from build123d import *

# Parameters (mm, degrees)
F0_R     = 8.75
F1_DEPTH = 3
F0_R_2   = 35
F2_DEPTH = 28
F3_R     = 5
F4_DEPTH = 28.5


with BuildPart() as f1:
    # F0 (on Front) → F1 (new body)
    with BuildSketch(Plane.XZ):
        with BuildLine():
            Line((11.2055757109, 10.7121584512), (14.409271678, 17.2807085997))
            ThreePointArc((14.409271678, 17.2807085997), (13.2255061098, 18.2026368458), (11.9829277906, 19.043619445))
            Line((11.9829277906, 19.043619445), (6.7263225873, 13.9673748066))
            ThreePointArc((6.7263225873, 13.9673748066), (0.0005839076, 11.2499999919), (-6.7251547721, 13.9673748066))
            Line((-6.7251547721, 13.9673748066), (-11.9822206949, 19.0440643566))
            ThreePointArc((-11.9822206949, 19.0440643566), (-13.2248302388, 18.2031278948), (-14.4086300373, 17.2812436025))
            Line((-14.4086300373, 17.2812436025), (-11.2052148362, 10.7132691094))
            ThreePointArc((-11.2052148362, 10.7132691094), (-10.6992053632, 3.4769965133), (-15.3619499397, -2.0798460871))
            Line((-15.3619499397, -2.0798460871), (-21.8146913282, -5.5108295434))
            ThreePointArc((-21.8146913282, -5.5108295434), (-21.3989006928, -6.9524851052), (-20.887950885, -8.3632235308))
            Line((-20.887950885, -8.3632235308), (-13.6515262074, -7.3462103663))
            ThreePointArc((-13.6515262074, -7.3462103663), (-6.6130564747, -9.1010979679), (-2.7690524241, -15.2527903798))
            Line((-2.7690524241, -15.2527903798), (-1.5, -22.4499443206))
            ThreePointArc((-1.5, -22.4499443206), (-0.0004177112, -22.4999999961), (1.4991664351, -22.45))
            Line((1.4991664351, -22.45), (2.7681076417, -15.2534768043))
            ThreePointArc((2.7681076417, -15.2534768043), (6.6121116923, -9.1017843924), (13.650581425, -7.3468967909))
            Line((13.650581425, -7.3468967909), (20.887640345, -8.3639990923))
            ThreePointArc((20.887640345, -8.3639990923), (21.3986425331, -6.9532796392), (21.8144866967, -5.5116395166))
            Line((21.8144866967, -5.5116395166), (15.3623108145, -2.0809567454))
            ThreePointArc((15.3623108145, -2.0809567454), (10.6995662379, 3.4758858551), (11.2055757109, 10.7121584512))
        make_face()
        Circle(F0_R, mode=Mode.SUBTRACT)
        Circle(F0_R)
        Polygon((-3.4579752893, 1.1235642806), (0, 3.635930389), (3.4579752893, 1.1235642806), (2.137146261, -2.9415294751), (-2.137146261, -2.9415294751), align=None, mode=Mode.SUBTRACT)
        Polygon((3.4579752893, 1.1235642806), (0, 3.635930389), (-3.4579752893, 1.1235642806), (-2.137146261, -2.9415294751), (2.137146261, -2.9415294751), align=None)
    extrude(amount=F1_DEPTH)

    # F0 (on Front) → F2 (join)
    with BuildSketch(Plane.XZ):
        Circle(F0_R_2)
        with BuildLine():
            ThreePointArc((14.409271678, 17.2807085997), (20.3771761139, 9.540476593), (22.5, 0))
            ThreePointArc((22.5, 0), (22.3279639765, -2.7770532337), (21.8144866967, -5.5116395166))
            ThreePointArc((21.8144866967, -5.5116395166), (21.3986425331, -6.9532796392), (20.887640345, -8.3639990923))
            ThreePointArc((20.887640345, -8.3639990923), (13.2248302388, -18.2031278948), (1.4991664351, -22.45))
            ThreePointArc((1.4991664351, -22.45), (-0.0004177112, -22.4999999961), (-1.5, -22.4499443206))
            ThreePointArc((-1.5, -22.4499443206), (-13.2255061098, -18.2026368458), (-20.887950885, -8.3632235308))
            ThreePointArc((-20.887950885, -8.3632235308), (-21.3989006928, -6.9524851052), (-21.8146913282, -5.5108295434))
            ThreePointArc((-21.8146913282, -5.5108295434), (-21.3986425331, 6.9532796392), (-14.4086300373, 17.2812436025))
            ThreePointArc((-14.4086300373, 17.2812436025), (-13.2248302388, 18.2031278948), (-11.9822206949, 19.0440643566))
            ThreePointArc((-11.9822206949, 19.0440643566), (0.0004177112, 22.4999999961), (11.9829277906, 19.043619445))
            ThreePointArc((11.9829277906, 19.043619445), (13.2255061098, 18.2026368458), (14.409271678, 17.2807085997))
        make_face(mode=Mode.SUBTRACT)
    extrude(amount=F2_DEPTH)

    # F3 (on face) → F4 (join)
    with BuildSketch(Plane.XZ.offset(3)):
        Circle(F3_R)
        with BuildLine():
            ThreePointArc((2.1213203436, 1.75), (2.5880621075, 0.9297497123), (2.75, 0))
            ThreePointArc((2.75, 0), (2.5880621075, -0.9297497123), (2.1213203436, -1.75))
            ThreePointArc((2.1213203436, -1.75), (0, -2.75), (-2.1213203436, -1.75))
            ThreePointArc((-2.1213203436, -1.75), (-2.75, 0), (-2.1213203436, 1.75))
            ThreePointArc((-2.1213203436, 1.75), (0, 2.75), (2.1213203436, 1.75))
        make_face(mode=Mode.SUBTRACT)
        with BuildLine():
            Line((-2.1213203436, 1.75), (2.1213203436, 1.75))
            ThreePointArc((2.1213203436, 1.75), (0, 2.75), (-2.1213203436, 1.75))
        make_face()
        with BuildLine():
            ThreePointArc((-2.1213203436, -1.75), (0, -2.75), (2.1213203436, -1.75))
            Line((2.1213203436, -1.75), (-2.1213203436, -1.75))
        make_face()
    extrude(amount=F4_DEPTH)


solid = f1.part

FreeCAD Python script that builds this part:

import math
import FreeCAD as App
import Part
import Sketcher

V = App.Vector
Q = App.Units.Quantity

doc = App.newDocument("Part")
params = doc.addObject("Spreadsheet::Sheet", "Params")
for row, (alias, value) in enumerate([
    ("sketch1_radius", "22.5 mm"),
    ("pad1_length", "3 mm"),
    ("sketch2_diameter", "70 mm"),
    ("sketch2_radius", "22.5 mm"),
    ("pad2_length", "28 mm"),
    ("sketch3_diameter", "10 mm"),
    ("sketch3_radius", "2.75 mm"),
    ("pad3_length", "28.5 mm"),
], start=1):
    params.set(f"A{row}", alias)
    params.set(f"B{row}", "=" + value)
    params.setAlias(f"B{row}", alias)

body = doc.addObject("PartDesign::Body", "Body")

sketch1 = body.newObject("Sketcher::SketchObject", "Sketch")
sketch1.AttachmentSupport = (doc.getObject("XZ_Plane"), [""])
sketch1.MapMode = "FlatFace"
sketch1.addGeometry(Part.LineSegment(V(11.2, 10.7, 0), V(14.4, 17.3, 0)), False)
sketch1.addGeometry(Part.ArcOfCircle(Part.Circle(V(0, 0, 0), V(0, 0, 1), 22.5), math.radians(50.18), math.radians(57.82)), False)
sketch1.addGeometry(Part.LineSegment(V(12, 19, 0), V(6.7, 14, 0)), False)
sketch1.addGeometry(Part.ArcOfCircle(Part.Circle(V(0, 20.9, 0), V(0, 0, 1), 9.7), math.radians(-134), math.radians(-46)), False)
sketch1.addGeometry(Part.LineSegment(V(-6.7, 14, 0), V(-12, 19, 0)), False)
sketch1.addGeometry(Part.ArcOfCircle(Part.Circle(V(0, 0, 0), V(0, 0, 1), 22.5), math.radians(122.18), math.radians(129.82)), False)
sketch1.addGeometry(Part.LineSegment(V(-14.4, 17.3, 0), V(-11.2, 10.7, 0)), False)
sketch1.addGeometry(Part.ArcOfCircle(Part.Circle(V(-19.9, 6.5, 0), V(0, 0, 1), 9.7), math.radians(-62), math.radians(26)), False)
sketch1.addGeometry(Part.LineSegment(V(-15.4, -2.1, 0), V(-21.8, -5.5, 0)), False)
sketch1.addGeometry(Part.ArcOfCircle(Part.Circle(V(0, 0, 0), V(0, 0, 1), 22.5), math.radians(-165.82), math.radians(-158.18)), False)
sketch1.addGeometry(Part.LineSegment(V(-20.9, -8.4, 0), V(-13.7, -7.3, 0)), False)
sketch1.addGeometry(Part.ArcOfCircle(Part.Circle(V(-12.3, -16.9, 0), V(0, 0, 1), 9.7), math.radians(10), math.radians(98)), False)
sketch1.addGeometry(Part.LineSegment(V(-2.8, -15.3, 0), V(-1.5, -22.4, 0)), False)
sketch1.addGeometry(Part.ArcOfCircle(Part.Circle(V(0, 0, 0), V(0, 0, 1), 22.5), math.radians(-93.82), math.radians(-86.18)), False)
sketch1.addGeometry(Part.LineSegment(V(1.5, -22.4, 0), V(2.8, -15.3, 0)), False)
sketch1.addGeometry(Part.ArcOfCircle(Part.Circle(V(12.3, -16.9, 0), V(0, 0, 1), 9.7), math.radians(82), math.radians(170)), False)
sketch1.addGeometry(Part.LineSegment(V(13.7, -7.3, 0), V(20.9, -8.4, 0)), False)
sketch1.addGeometry(Part.ArcOfCircle(Part.Circle(V(0, 0, 0), V(0, 0, 1), 22.5), math.radians(-21.82), math.radians(-14.18)), False)
sketch1.addGeometry(Part.LineSegment(V(21.8, -5.5, 0), V(15.4, -2.1, 0)), False)
sketch1.addGeometry(Part.ArcOfCircle(Part.Circle(V(19.9, 6.5, 0), V(0, 0, 1), 9.7), math.radians(154), math.radians(242)), False)
sketch1.addConstraint(Sketcher.Constraint("Coincident", 0, 2, 1, 1))
sketch1.addConstraint(Sketcher.Constraint("Coincident", 1, 2, 2, 1))
sketch1.addConstraint(Sketcher.Constraint("Tangent", 2, 2, 3, 2))
sketch1.addConstraint(Sketcher.Constraint("Tangent", 3, 1, 4, 1))
sketch1.addConstraint(Sketcher.Constraint("Coincident", 4, 2, 5, 1))
sketch1.addConstraint(Sketcher.Constraint("Coincident", 5, 2, 6, 1))
sketch1.addConstraint(Sketcher.Constraint("Tangent", 6, 2, 7, 2))
sketch1.addConstraint(Sketcher.Constraint("Tangent", 7, 1, 8, 1))
sketch1.addConstraint(Sketcher.Constraint("Coincident", 8, 2, 9, 1))
sketch1.addConstraint(Sketcher.Constraint("Coincident", 9, 2, 10, 1))
sketch1.addConstraint(Sketcher.Constraint("Tangent", 10, 2, 11, 2))
sketch1.addConstraint(Sketcher.Constraint("Tangent", 11, 1, 12, 1))
sketch1.addConstraint(Sketcher.Constraint("Coincident", 12, 2, 13, 1))
sketch1.addConstraint(Sketcher.Constraint("Coincident", 13, 2, 14, 1))
sketch1.addConstraint(Sketcher.Constraint("Tangent", 14, 2, 15, 2))
sketch1.addConstraint(Sketcher.Constraint("Tangent", 15, 1, 16, 1))
sketch1.addConstraint(Sketcher.Constraint("Coincident", 16, 2, 17, 1))
sketch1.addConstraint(Sketcher.Constraint("Coincident", 17, 2, 18, 1))
sketch1.addConstraint(Sketcher.Constraint("Tangent", 18, 2, 19, 2))
sketch1.addConstraint(Sketcher.Constraint("Tangent", 19, 1, 0, 1))
sketch1.addConstraint(Sketcher.Constraint("Coincident", 1, 3, -1, 1))
sketch1.addConstraint(Sketcher.Constraint("Coincident", 5, 3, -1, 1))
sketch1.addConstraint(Sketcher.Constraint("Coincident", 9, 3, -1, 1))
sketch1.addConstraint(Sketcher.Constraint("Coincident", 13, 3, -1, 1))
sketch1.addConstraint(Sketcher.Constraint("Coincident", 17, 3, -1, 1))
sketch1.addConstraint(Sketcher.Constraint("Equal", 1, 5))
sketch1.addConstraint(Sketcher.Constraint("Equal", 3, 7))
sketch1.addConstraint(Sketcher.Constraint("Equal", 5, 9))
sketch1.addConstraint(Sketcher.Constraint("Equal", 7, 11))
sketch1.addConstraint(Sketcher.Constraint("Equal", 9, 13))
sketch1.addConstraint(Sketcher.Constraint("Equal", 11, 15))
sketch1.addConstraint(Sketcher.Constraint("Equal", 13, 17))
sketch1.addConstraint(Sketcher.Constraint("Equal", 15, 19))
sketch1.addConstraint(Sketcher.Constraint("Horizontal", 2, 2, 3, 1))
sketch1.addConstraint(Sketcher.Constraint("Equal", 0, 4))
sketch1.addConstraint(Sketcher.Constraint("Equal", 2, 6))
sketch1.addConstraint(Sketcher.Constraint("Equal", 4, 8))
sketch1.addConstraint(Sketcher.Constraint("Equal", 6, 10))
sketch1.addConstraint(Sketcher.Constraint("Equal", 8, 12))
sketch1.addConstraint(Sketcher.Constraint("Equal", 10, 14))
sketch1.addConstraint(Sketcher.Constraint("Equal", 12, 16))
sketch1.addConstraint(Sketcher.Constraint("Equal", 14, 18))
sketch1.addConstraint(Sketcher.Constraint("Radius", 1, 22.5))
sketch1.addConstraint(Sketcher.Constraint("Angle", 0, Q("64 deg")))
sketch1.addConstraint(Sketcher.Constraint("Angle", 2, Q("-136 deg")))
sketch1.addConstraint(Sketcher.Constraint("Angle", 6, Q("-64 deg")))
sketch1.addConstraint(Sketcher.Constraint("Angle", 8, Q("-152 deg")))
sketch1.addConstraint(Sketcher.Constraint("Angle", 10, Q("8 deg")))
sketch1.addConstraint(Sketcher.Constraint("Angle", 12, Q("-80 deg")))
sketch1.addConstraint(Sketcher.Constraint("Angle", 14, Q("80 deg")))
sketch1.addConstraint(Sketcher.Constraint("Angle", 16, Q("-8 deg")))
sketch1.addConstraint(Sketcher.Constraint("Angle", 18, Q("152 deg")))
sketch1.addConstraint(Sketcher.Constraint("DistanceX", 12, 2, -1, 1, 1.5))
sketch1.addConstraint(Sketcher.Constraint("DistanceY", 13, 2, -1, 1, 22.45))
sketch1.addConstraint(Sketcher.Constraint("Radius", 3, 9.682081))
sketch1.setExpression("Constraints[42]", "Params.sketch1_radius")
pad1 = body.newObject("PartDesign::Pad", "Pad")
pad1.Profile = sketch1
pad1.setExpression("Length", "Params.pad1_length")

sketch2 = body.newObject("Sketcher::SketchObject", "Sketch001")
sketch2.AttachmentSupport = (doc.getObject("XZ_Plane"), [""])
sketch2.MapMode = "FlatFace"
sketch2.addGeometry(Part.Circle(V(0, 0, 0), V(0, 0, 1), 35), False)
sketch2.addGeometry(Part.ArcOfCircle(Part.Circle(V(0, 0, 0), V(0, 0, 1), 22.5), math.radians(50.18), math.radians(57.82)), False)
sketch2.addGeometry(Part.ArcOfCircle(Part.Circle(V(0, 0, 0), V(0, 0, 1), 22.5), math.radians(0), math.radians(50)), False)
sketch2.addGeometry(Part.ArcOfCircle(Part.Circle(V(0, 0, 0), V(0, 0, 1), 22.5), math.radians(-14.18), math.radians(0)), False)
sketch2.addGeometry(Part.ArcOfCircle(Part.Circle(V(0, 0, 0), V(0, 0, 1), 22.5), math.radians(-21.82), math.radians(-14.18)), False)
sketch2.addGeometry(Part.ArcOfCircle(Part.Circle(V(0, 0, 0), V(0, 0, 1), 22.5), math.radians(-86), math.radians(-22)), False)
sketch2.addGeometry(Part.ArcOfCircle(Part.Circle(V(0, 0, 0), V(0, 0, 1), 22.5), math.radians(-93.82), math.radians(-86.18)), False)
sketch2.addGeometry(Part.ArcOfCircle(Part.Circle(V(0, 0, 0), V(0, 0, 1), 22.5), math.radians(-158), math.radians(-94)), False)
sketch2.addGeometry(Part.ArcOfCircle(Part.Circle(V(0, 0, 0), V(0, 0, 1), 22.5), math.radians(-165.82), math.radians(-158.18)), False)
sketch2.addGeometry(Part.ArcOfCircle(Part.Circle(V(0, 0, 0), V(0, 0, 1), 22.5), math.radians(130), math.radians(194)), False)
sketch2.addGeometry(Part.ArcOfCircle(Part.Circle(V(0, 0, 0), V(0, 0, 1), 22.5), math.radians(122.18), math.radians(129.82)), False)
sketch2.addGeometry(Part.ArcOfCircle(Part.Circle(V(0, 0, 0), V(0, 0, 1), 22.5), math.radians(58), math.radians(122)), False)
sketch2.addConstraint(Sketcher.Constraint("Tangent", 1, 1, 2, 2))
sketch2.addConstraint(Sketcher.Constraint("Tangent", 2, 1, 3, 2))
sketch2.addConstraint(Sketcher.Constraint("Tangent", 3, 1, 4, 2))
sketch2.addConstraint(Sketcher.Constraint("Tangent", 4, 1, 5, 2))
sketch2.addConstraint(Sketcher.Constraint("Tangent", 5, 1, 6, 2))
sketch2.addConstraint(Sketcher.Constraint("Tangent", 6, 1, 7, 2))
sketch2.addConstraint(Sketcher.Constraint("Tangent", 7, 1, 8, 2))
sketch2.addConstraint(Sketcher.Constraint("Tangent", 8, 1, 9, 2))
sketch2.addConstraint(Sketcher.Constraint("Tangent", 9, 1, 10, 2))
sketch2.addConstraint(Sketcher.Constraint("Tangent", 10, 1, 11, 2))
sketch2.addConstraint(Sketcher.Constraint("Tangent", 11, 1, 1, 2))
sketch2.addConstraint(Sketcher.Constraint("Coincident", 0, 3, -1, 1))
sketch2.addConstraint(Sketcher.Constraint("Coincident", 1, 3, -1, 1))
sketch2.addConstraint(Sketcher.Constraint("Coincident", 3, 3, -1, 1))
sketch2.addConstraint(Sketcher.Constraint("Coincident", 5, 3, -1, 1))
sketch2.addConstraint(Sketcher.Constraint("Coincident", 7, 3, -1, 1))
sketch2.addConstraint(Sketcher.Constraint("Coincident", 9, 3, -1, 1))
sketch2.addConstraint(Sketcher.Constraint("PointOnObject", 2, 1, -1))
sketch2.addConstraint(Sketcher.Constraint("Diameter", 0, 70.0))
sketch2.addConstraint(Sketcher.Constraint("Radius", 1, 22.5))
sketch2.addConstraint(Sketcher.Constraint("DistanceX", 6, 1, -1, 1, 1.5))
sketch2.addConstraint(Sketcher.Constraint("DistanceY", 5, 1, -1, 1, 22.45))
sketch2.addConstraint(Sketcher.Constraint("DistanceY", 4, 1, -1, 1, 8.363999))
sketch2.addConstraint(Sketcher.Constraint("DistanceX", -1, 1, 1, 1, 14.409272))
sketch2.addConstraint(Sketcher.Constraint("DistanceY", 3, 1, -1, 1, 5.51164))
sketch2.addConstraint(Sketcher.Constraint("DistanceX", 7, 1, -1, 1, 20.887951))
sketch2.addConstraint(Sketcher.Constraint("DistanceX", 8, 1, -1, 1, 21.814691))
sketch2.addConstraint(Sketcher.Constraint("DistanceX", 9, 1, -1, 1, 14.40863))
sketch2.addConstraint(Sketcher.Constraint("DistanceX", 10, 1, -1, 1, 11.982221))
sketch2.addConstraint(Sketcher.Constraint("DistanceY", -1, 1, 11, 1, 19.043619))
sketch2.setExpression("Constraints[18]", "Params.sketch2_diameter")
sketch2.setExpression("Constraints[19]", "Params.sketch2_radius")
pad2 = body.newObject("PartDesign::Pad", "Pad001")
pad2.Profile = sketch2
pad2.setExpression("Length", "Params.pad2_length")

sketch3 = body.newObject("Sketcher::SketchObject", "Sketch002")
sketch3.AttachmentSupport = (doc.getObject("XZ_Plane"), [""])
sketch3.MapMode = "FlatFace"
sketch3.AttachmentOffset = App.Placement(V(0, 0, 3), App.Rotation())
sketch3.addGeometry(Part.Circle(V(0, 0, 0), V(0, 0, 1), 5), False)
sketch3.addGeometry(Part.ArcOfCircle(Part.Circle(V(0, 0, 0), V(0, 0, 1), 2.8), math.radians(140), math.radians(220)), False)
sketch3.addGeometry(Part.LineSegment(V(-2.1, 1.8, 0), V(2.1, 1.8, 0)), False)
sketch3.addGeometry(Part.ArcOfCircle(Part.Circle(V(0, 0, 0), V(0, 0, 1), 2.8), math.radians(0), math.radians(40)), False)
sketch3.addGeometry(Part.ArcOfCircle(Part.Circle(V(0, 0, 0), V(0, 0, 1), 2.8), math.radians(-40), math.radians(0)), False)
sketch3.addGeometry(Part.LineSegment(V(2.1, -1.8, 0), V(-2.1, -1.8, 0)), False)
sketch3.addConstraint(Sketcher.Constraint("Coincident", 1, 1, 2, 1))
sketch3.addConstraint(Sketcher.Constraint("Coincident", 2, 2, 3, 2))
sketch3.addConstraint(Sketcher.Constraint("Tangent", 3, 1, 4, 2))
sketch3.addConstraint(Sketcher.Constraint("Coincident", 4, 1, 5, 1))
sketch3.addConstraint(Sketcher.Constraint("Coincident", 5, 2, 1, 2))
sketch3.addConstraint(Sketcher.Constraint("Horizontal", 2))
sketch3.addConstraint(Sketcher.Constraint("Horizontal", 5))
sketch3.addConstraint(Sketcher.Constraint("Coincident", 0, 3, -1, 1))
sketch3.addConstraint(Sketcher.Constraint("Coincident", 1, 3, -1, 1))
sketch3.addConstraint(Sketcher.Constraint("Coincident", 3, 3, -1, 1))
sketch3.addConstraint(Sketcher.Constraint("Equal", 1, 3))
sketch3.addConstraint(Sketcher.Constraint("Equal", 3, 4))
sketch3.addConstraint(Sketcher.Constraint("PointOnObject", 3, 1, -1))
sketch3.addConstraint(Sketcher.Constraint("Vertical", 2, 2, 4, 1))
sketch3.addConstraint(Sketcher.Constraint("Diameter", 0, 10.0))
sketch3.addConstraint(Sketcher.Constraint("Radius", 1, 2.75))
sketch3.addConstraint(Sketcher.Constraint("DistanceY", 5, 2, 1, 1, 3.5))
sketch3.setExpression("Constraints[14]", "Params.sketch3_diameter")
sketch3.setExpression("Constraints[15]", "Params.sketch3_radius")
pad3 = body.newObject("PartDesign::Pad", "Pad002")
pad3.Profile = sketch3
pad3.setExpression("Length", "Params.pad3_length")

doc.recompute()
